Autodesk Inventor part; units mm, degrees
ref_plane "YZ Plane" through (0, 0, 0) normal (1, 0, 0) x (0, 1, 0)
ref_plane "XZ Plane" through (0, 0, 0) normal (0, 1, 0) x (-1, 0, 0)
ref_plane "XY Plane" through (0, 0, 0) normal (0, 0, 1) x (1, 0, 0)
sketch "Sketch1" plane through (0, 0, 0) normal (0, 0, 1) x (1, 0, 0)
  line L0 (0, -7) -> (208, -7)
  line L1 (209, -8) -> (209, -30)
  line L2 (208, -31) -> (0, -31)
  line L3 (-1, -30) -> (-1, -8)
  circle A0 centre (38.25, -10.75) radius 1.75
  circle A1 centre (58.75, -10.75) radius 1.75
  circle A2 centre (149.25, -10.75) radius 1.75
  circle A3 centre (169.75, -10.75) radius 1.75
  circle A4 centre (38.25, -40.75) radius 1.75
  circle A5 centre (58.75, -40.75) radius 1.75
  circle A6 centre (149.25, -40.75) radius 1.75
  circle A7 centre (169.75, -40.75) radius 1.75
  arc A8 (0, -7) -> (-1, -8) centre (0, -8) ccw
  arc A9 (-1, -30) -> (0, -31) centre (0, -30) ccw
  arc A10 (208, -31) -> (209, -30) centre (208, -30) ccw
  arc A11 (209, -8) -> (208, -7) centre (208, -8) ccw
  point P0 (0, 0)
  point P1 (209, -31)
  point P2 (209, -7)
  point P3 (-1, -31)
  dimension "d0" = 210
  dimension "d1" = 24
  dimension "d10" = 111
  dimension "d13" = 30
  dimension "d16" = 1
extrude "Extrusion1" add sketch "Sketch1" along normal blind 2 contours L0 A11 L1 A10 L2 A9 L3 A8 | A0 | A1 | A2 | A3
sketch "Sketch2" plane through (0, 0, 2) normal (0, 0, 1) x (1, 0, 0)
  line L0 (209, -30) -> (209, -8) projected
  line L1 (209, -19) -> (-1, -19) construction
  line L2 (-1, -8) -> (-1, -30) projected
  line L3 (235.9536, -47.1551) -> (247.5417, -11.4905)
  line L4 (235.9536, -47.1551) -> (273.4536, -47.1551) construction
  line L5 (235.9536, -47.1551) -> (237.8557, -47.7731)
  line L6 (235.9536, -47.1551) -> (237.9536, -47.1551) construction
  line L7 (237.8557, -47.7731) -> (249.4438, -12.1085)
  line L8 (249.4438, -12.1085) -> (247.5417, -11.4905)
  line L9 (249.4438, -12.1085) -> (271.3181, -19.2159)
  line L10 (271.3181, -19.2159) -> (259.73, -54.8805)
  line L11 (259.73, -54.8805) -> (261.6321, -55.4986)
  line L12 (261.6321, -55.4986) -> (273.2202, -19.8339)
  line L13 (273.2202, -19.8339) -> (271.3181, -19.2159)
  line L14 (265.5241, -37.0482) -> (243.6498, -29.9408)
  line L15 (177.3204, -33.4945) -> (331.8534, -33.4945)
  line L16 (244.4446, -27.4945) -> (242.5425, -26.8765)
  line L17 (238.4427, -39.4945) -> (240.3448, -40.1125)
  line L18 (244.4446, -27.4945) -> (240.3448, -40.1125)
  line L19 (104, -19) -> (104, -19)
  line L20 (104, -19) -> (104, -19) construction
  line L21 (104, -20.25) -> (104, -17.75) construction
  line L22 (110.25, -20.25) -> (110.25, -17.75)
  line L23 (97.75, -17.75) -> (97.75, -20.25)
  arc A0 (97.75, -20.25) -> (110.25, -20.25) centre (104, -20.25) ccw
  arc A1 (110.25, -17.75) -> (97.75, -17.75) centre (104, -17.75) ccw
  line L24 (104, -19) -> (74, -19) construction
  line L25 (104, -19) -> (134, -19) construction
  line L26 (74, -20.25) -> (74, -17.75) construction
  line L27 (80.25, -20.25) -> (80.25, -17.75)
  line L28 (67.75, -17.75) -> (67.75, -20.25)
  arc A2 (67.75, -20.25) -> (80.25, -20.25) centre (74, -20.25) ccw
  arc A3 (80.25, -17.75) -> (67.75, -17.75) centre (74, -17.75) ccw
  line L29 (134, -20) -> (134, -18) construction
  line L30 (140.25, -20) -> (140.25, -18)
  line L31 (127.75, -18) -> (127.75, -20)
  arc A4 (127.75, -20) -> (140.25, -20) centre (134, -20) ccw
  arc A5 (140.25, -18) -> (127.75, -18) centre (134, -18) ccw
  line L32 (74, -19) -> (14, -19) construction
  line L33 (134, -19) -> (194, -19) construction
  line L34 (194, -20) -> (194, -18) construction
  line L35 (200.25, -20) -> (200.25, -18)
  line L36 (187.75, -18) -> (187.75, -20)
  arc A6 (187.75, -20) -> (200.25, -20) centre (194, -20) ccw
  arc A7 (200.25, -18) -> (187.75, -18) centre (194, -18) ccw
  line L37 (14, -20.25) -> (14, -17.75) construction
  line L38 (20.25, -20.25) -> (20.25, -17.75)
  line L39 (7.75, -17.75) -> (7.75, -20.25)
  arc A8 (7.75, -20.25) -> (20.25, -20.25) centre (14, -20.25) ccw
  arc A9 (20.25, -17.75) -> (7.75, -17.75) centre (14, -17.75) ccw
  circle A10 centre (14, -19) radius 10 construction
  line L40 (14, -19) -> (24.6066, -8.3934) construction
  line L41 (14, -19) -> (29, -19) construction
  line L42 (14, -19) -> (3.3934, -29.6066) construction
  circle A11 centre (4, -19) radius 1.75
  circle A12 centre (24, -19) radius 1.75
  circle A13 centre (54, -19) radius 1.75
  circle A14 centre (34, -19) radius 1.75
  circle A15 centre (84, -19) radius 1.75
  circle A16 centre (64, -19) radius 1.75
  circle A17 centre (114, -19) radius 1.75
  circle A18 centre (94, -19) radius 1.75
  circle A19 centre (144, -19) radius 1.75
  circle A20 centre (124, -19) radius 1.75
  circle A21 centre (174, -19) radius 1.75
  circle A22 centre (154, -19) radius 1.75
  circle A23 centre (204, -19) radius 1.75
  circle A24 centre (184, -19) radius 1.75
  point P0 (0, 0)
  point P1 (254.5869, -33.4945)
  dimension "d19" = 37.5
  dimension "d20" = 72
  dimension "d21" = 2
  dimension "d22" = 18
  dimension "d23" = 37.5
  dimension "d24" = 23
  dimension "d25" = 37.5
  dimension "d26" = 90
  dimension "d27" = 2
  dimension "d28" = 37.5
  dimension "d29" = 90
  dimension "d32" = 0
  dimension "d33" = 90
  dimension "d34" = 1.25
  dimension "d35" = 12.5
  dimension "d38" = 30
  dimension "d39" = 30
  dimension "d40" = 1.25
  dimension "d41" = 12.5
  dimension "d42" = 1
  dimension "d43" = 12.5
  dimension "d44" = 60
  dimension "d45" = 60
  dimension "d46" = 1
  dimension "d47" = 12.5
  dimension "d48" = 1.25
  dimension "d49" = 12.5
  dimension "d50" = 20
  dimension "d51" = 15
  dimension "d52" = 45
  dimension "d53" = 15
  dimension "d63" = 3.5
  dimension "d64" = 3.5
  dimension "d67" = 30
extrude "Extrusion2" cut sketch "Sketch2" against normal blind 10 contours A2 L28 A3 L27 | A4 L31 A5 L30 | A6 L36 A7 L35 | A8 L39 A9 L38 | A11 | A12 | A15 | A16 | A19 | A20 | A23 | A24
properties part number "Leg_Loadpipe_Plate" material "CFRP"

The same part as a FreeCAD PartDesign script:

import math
import FreeCAD as App
import Part
import Sketcher

V = App.Vector

doc = App.newDocument("Part")
body = doc.addObject("PartDesign::Body", "Body")

sketch1 = body.newObject("Sketcher::SketchObject", "Sketch")
sketch1.AttachmentSupport = (doc.getObject("XY_Plane"), [""])
sketch1.MapMode = "FlatFace"
sketch1.addGeometry([
    Part.LineSegment(V(208, -7, 0), V(0, -7, 0)),
    Part.ArcOfCircle(Part.Circle(V(0, -8, 0), V(0, 0, 1), 1), math.radians(90), math.radians(180)),
    Part.LineSegment(V(-1, -8, 0), V(-1, -30, 0)),
    Part.ArcOfCircle(Part.Circle(V(0, -30, 0), V(0, 0, 1), 1), math.radians(180), math.radians(270)),
    Part.LineSegment(V(0, -31, 0), V(208, -31, 0)),
    Part.ArcOfCircle(Part.Circle(V(208, -30, 0), V(0, 0, 1), 1), math.radians(-90), math.radians(0)),
    Part.LineSegment(V(209, -30, 0), V(209, -8, 0)),
    Part.ArcOfCircle(Part.Circle(V(208, -8, 0), V(0, 0, 1), 1), math.radians(0), math.radians(90)),
], False)
sketch1.addConstraint([
    Sketcher.Constraint("Tangent", 0, 2, 1, 1),
    Sketcher.Constraint("Tangent", 1, 2, 2, 1),
    Sketcher.Constraint("Tangent", 2, 2, 3, 1),
    Sketcher.Constraint("Tangent", 3, 2, 4, 1),
    Sketcher.Constraint("Tangent", 4, 2, 5, 1),
    Sketcher.Constraint("Tangent", 5, 2, 6, 1),
    Sketcher.Constraint("Tangent", 6, 2, 7, 1),
    Sketcher.Constraint("Tangent", 7, 2, 0, 1),
    Sketcher.Constraint("Horizontal", 0),
    Sketcher.Constraint("Vertical", 2),
    Sketcher.Constraint("Horizontal", 4),
    Sketcher.Constraint("Vertical", 6),
    Sketcher.Constraint("Equal", 1, 3),
    Sketcher.Constraint("Equal", 3, 5),
    Sketcher.Constraint("Equal", 5, 7),
    Sketcher.Constraint("PointOnObject", 1, 3, -2),
    Sketcher.Constraint("Radius", 1, 1.0),
    Sketcher.Constraint("DistanceY", 3, 3, -1, 1, 30.0),
    Sketcher.Constraint("DistanceY", 3, 2, 0, 2, 24.0),
    Sketcher.Constraint("DistanceX", 0, 2, 0, 1, 208.0),
])
pad1 = body.newObject("PartDesign::Pad", "Pad")
pad1.Profile = sketch1
pad1.Length = 2

sketch2 = body.newObject("Sketcher::SketchObject", "Sketch001")
sketch2.AttachmentSupport = (doc.getObject("XY_Plane"), [""])
sketch2.MapMode = "FlatFace"
sketch2.AttachmentOffset = App.Placement(V(0, 0, 2), App.Rotation())
sketch2.addGeometry([
    Part.ArcOfCircle(Part.Circle(V(74, -20.2, 0), V(0, 0, 1), 6.2), math.radians(180), math.radians(360)),
    Part.LineSegment(V(80.2, -20.2, 0), V(80.2, -17.8, 0)),
    Part.ArcOfCircle(Part.Circle(V(74, -17.8, 0), V(0, 0, 1), 6.2), math.radians(0), math.radians(180)),
    Part.LineSegment(V(67.8, -17.8, 0), V(67.8, -20.2, 0)),
    Part.ArcOfCircle(Part.Circle(V(134, -20, 0), V(0, 0, 1), 6.2), math.radians(180), math.radians(360)),
    Part.LineSegment(V(140.2, -20, 0), V(140.2, -18, 0)),
    Part.ArcOfCircle(Part.Circle(V(134, -18, 0), V(0, 0, 1), 6.2), math.radians(0), math.radians(180)),
    Part.LineSegment(V(127.8, -18, 0), V(127.8, -20, 0)),
    Part.ArcOfCircle(Part.Circle(V(194, -20, 0), V(0, 0, 1), 6.2), math.radians(180), math.radians(360)),
    Part.LineSegment(V(200.2, -20, 0), V(200.2, -18, 0)),
    Part.ArcOfCircle(Part.Circle(V(194, -18, 0), V(0, 0, 1), 6.2), math.radians(0), math.radians(180)),
    Part.LineSegment(V(187.8, -18, 0), V(187.8, -20, 0)),
    Part.ArcOfCircle(Part.Circle(V(14, -20.2, 0), V(0, 0, 1), 6.2), math.radians(180), math.radians(360)),
    Part.LineSegment(V(20.2, -20.2, 0), V(20.2, -17.8, 0)),
    Part.ArcOfCircle(Part.Circle(V(14, -17.8, 0), V(0, 0, 1), 6.2), math.radians(0), math.radians(180)),
    Part.LineSegment(V(7.8, -17.8, 0), V(7.8, -20.2, 0)),
    Part.Circle(V(4, -19, 0), V(0, 0, 1), 1.8),
    Part.Circle(V(24, -19, 0), V(0, 0, 1), 1.8),
    Part.Circle(V(84, -19, 0), V(0, 0, 1), 1.8),
    Part.Circle(V(64, -19, 0), V(0, 0, 1), 1.8),
    Part.Circle(V(144, -19, 0), V(0, 0, 1), 1.8),
    Part.Circle(V(124, -19, 0), V(0, 0, 1), 1.8),
    Part.Circle(V(204, -19, 0), V(0, 0, 1), 1.8),
    Part.Circle(V(184, -19, 0), V(0, 0, 1), 1.8),
], False)
sketch2.addConstraint([
    Sketcher.Constraint("Tangent", 0, 2, 1, 1),
    Sketcher.Constraint("Tangent", 1, 2, 2, 1),
    Sketcher.Constraint("Tangent", 2, 2, 3, 1),
    Sketcher.Constraint("Tangent", 3, 2, 0, 1),
    Sketcher.Constraint("Tangent", 4, 2, 5, 1),
    Sketcher.Constraint("Tangent", 5, 2, 6, 1),
    Sketcher.Constraint("Tangent", 6, 2, 7, 1),
    Sketcher.Constraint("Tangent", 7, 2, 4, 1),
    Sketcher.Constraint("Tangent", 8, 2, 9, 1),
    Sketcher.Constraint("Tangent", 9, 2, 10, 1),
    Sketcher.Constraint("Tangent", 10, 2, 11, 1),
    Sketcher.Constraint("Tangent", 11, 2, 8, 1),
    Sketcher.Constraint("Tangent", 12, 2, 13, 1),
    Sketcher.Constraint("Tangent", 13, 2, 14, 1),
    Sketcher.Constraint("Tangent", 14, 2, 15, 1),
    Sketcher.Constraint("Tangent", 15, 2, 12, 1),
    Sketcher.Constraint("Vertical", 1),
    Sketcher.Constraint("Vertical", 3),
    Sketcher.Constraint("Vertical", 5),
    Sketcher.Constraint("Vertical", 7),
    Sketcher.Constraint("Vertical", 9),
    Sketcher.Constraint("Vertical", 11),
    Sketcher.Constraint("Vertical", 13),
    Sketcher.Constraint("Vertical", 15),
    Sketcher.Constraint("Equal", 2, 4),
    Sketcher.Constraint("Equal", 6, 8),
    Sketcher.Constraint("Equal", 10, 12),
    Sketcher.Constraint("Equal", 16, 17),
    Sketcher.Constraint("Equal", 17, 18),
    Sketcher.Constraint("Equal", 18, 19),
    Sketcher.Constraint("Equal", 19, 20),
    Sketcher.Constraint("Equal", 20, 21),
    Sketcher.Constraint("Equal", 21, 22),
    Sketcher.Constraint("Equal", 22, 23),
    Sketcher.Constraint("Horizontal", 4, 3, 8, 3),
    Sketcher.Constraint("Horizontal", 6, 3, 10, 3),
    Sketcher.Constraint("Horizontal", 0, 3, 12, 3),
    Sketcher.Constraint("Horizontal", 2, 3, 14, 3),
    Sketcher.Constraint("Horizontal", 16, 3, 17, 3),
    Sketcher.Constraint("Horizontal", 17, 3, 18, 3),
    Sketcher.Constraint("Horizontal", 18, 3, 19, 3),
    Sketcher.Constraint("Horizontal", 19, 3, 20, 3),
    Sketcher.Constraint("Horizontal", 20, 3, 21, 3),
    Sketcher.Constraint("Horizontal", 21, 3, 22, 3),
    Sketcher.Constraint("Horizontal", 22, 3, 23, 3),
    Sketcher.Constraint("Diameter", 16, 3.5),
    Sketcher.Constraint("DistanceY", 5, 1, 5, 2, 2.0),
    Sketcher.Constraint("Radius", 0, 6.25),
    Sketcher.Constraint("DistanceY", 4, 3, -1, 1, 20.0),
    Sketcher.Constraint("DistanceX", 0, 3, 4, 3, 60.0),
    Sketcher.Constraint("DistanceX", 4, 3, 8, 3, 60.0),
    Sketcher.Constraint("DistanceX", 12, 3, 0, 3, 60.0),
    Sketcher.Constraint("DistanceX", 16, 3, 12, 3, 10.0),
    Sketcher.Constraint("DistanceY", 4, 3, 16, 3, 1.0),
    Sketcher.Constraint("DistanceX", 12, 3, 17, 3, 10.0),
    Sketcher.Constraint("DistanceX", 0, 3, 18, 3, 10.0),
    Sketcher.Constraint("DistanceX", 19, 3, 0, 3, 10.0),
    Sketcher.Constraint("DistanceX", 4, 3, 20, 3, 10.0),
    Sketcher.Constraint("DistanceX", 21, 3, 4, 3, 10.0),
    Sketcher.Constraint("DistanceX", 8, 3, 22, 3, 10.0),
    Sketcher.Constraint("DistanceX", 23, 3, 8, 3, 10.0),
    Sketcher.Constraint("DistanceY", 12, 3, 16, 3, 1.25),
    Sketcher.Constraint("DistanceY", 16, 3, 14, 3, 1.25),
    Sketcher.Constraint("DistanceX", -1, 1, 0, 3, 74.0),
])
pocket1 = body.newObject("PartDesign::Pocket", "Pocket")
pocket1.Profile = sketch2
pocket1.Length = 10

doc.recompute()
